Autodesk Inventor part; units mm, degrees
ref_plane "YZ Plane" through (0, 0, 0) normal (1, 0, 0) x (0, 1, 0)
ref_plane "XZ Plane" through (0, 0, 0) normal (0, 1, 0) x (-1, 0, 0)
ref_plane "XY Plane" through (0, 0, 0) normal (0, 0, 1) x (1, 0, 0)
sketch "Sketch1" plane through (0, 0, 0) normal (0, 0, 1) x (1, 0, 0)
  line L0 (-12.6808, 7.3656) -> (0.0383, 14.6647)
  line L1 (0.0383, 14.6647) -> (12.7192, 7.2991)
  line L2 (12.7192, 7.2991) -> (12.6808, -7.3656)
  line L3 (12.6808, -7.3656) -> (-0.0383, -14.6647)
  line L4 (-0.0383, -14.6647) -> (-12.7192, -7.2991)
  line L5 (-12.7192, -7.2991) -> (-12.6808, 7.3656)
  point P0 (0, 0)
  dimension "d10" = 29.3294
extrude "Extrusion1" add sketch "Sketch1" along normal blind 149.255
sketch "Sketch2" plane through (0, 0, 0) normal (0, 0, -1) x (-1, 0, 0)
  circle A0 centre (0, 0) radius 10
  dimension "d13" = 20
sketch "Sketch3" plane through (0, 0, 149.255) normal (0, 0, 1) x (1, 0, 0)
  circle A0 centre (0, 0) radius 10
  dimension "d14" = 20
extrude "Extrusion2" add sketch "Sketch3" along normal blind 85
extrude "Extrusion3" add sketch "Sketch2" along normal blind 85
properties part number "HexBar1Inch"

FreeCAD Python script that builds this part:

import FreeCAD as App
import Part
import Sketcher

V = App.Vector
Q = App.Units.Quantity

doc = App.newDocument("Part")
body = doc.addObject("PartDesign::Body", "Body")

sketch1 = body.newObject("Sketcher::SketchObject", "Sketch")
sketch1.AttachmentSupport = (doc.getObject("XY_Plane"), [""])
sketch1.MapMode = "FlatFace"
sketch1.addGeometry([
    Part.LineSegment(V(0.0383, 14.6647, 0), V(-12.6808, 7.3656, 0)),
    Part.LineSegment(V(-12.6808, 7.3656, 0), V(-12.7192, -7.2991, 0)),
    Part.LineSegment(V(-12.7192, -7.2991, 0), V(-0.0383, -14.6647, 0)),
    Part.LineSegment(V(-0.0383, -14.6647, 0), V(12.6808, -7.3656, 0)),
    Part.LineSegment(V(12.6808, -7.3656, 0), V(12.7192, 7.2991, 0)),
    Part.LineSegment(V(12.7192, 7.2991, 0), V(0.0383, 14.6647, 0)),
], False)
sketch1.addConstraint([
    Sketcher.Constraint("Coincident", 0, 2, 1, 1),
    Sketcher.Constraint("Coincident", 1, 2, 2, 1),
    Sketcher.Constraint("Coincident", 2, 2, 3, 1),
    Sketcher.Constraint("Coincident", 3, 2, 4, 1),
    Sketcher.Constraint("Coincident", 4, 2, 5, 1),
    Sketcher.Constraint("Coincident", 5, 2, 0, 1),
    Sketcher.Constraint("Symmetric", 0, 2, 3, 2, -1, 1),
    Sketcher.Constraint("Symmetric", 1, 2, 4, 2, -1, 1),
    Sketcher.Constraint("Symmetric", 2, 2, 5, 2, -1, 1),
    Sketcher.Constraint("Equal", 0, 1),
    Sketcher.Constraint("Equal", 1, 2),
    Sketcher.Constraint("Angle", 0, Q("-150.1498 deg")),
    Sketcher.Constraint("Angle", 1, Q("-90.15 deg")),
    Sketcher.Constraint("Angle", 2, Q("-30.1498 deg")),
    Sketcher.Constraint("DistanceX", 1, 2, 3, 2, Q("25.4 mm")),
])
pad1 = body.newObject("PartDesign::Pad", "Pad")
pad1.Profile = sketch1
pad1.Length = 149.255

sketch2 = body.newObject("Sketcher::SketchObject", "Sketch001")
sketch2.AttachmentSupport = (doc.getObject("XY_Plane"), [""])
sketch2.MapMode = "FlatFace"
sketch2.AttachmentOffset = App.Placement(V(0, 0, 149.255), App.Rotation())
sketch2.addGeometry(Part.Circle(V(0, 0, 0), V(0, 0, 1), 10), False)
sketch2.addConstraint([
    Sketcher.Constraint("Coincident", 0, 3, -1, 1),
    Sketcher.Constraint("Diameter", 0, Q("20 mm")),
])
pad2 = body.newObject("PartDesign::Pad", "Pad001")
pad2.Profile = sketch2
pad2.Length = 85

sketch3 = body.newObject("Sketcher::SketchObject", "Sketch002")
sketch3.AttachmentSupport = (doc.getObject("XY_Plane"), [""])
sketch3.MapMode = "FlatFace"
sketch3.addGeometry(Part.Circle(V(0, 0, 0), V(0, 0, 1), 10), False)
sketch3.addConstraint([
    Sketcher.Constraint("Coincident", 0, 3, -1, 1),
    Sketcher.Constraint("Diameter", 0, Q("20 mm")),
])
pad3 = body.newObject("PartDesign::Pad", "Pad002")
pad3.Profile = sketch3
pad3.Length = 85
pad3.Reversed = True

doc.recompute()
